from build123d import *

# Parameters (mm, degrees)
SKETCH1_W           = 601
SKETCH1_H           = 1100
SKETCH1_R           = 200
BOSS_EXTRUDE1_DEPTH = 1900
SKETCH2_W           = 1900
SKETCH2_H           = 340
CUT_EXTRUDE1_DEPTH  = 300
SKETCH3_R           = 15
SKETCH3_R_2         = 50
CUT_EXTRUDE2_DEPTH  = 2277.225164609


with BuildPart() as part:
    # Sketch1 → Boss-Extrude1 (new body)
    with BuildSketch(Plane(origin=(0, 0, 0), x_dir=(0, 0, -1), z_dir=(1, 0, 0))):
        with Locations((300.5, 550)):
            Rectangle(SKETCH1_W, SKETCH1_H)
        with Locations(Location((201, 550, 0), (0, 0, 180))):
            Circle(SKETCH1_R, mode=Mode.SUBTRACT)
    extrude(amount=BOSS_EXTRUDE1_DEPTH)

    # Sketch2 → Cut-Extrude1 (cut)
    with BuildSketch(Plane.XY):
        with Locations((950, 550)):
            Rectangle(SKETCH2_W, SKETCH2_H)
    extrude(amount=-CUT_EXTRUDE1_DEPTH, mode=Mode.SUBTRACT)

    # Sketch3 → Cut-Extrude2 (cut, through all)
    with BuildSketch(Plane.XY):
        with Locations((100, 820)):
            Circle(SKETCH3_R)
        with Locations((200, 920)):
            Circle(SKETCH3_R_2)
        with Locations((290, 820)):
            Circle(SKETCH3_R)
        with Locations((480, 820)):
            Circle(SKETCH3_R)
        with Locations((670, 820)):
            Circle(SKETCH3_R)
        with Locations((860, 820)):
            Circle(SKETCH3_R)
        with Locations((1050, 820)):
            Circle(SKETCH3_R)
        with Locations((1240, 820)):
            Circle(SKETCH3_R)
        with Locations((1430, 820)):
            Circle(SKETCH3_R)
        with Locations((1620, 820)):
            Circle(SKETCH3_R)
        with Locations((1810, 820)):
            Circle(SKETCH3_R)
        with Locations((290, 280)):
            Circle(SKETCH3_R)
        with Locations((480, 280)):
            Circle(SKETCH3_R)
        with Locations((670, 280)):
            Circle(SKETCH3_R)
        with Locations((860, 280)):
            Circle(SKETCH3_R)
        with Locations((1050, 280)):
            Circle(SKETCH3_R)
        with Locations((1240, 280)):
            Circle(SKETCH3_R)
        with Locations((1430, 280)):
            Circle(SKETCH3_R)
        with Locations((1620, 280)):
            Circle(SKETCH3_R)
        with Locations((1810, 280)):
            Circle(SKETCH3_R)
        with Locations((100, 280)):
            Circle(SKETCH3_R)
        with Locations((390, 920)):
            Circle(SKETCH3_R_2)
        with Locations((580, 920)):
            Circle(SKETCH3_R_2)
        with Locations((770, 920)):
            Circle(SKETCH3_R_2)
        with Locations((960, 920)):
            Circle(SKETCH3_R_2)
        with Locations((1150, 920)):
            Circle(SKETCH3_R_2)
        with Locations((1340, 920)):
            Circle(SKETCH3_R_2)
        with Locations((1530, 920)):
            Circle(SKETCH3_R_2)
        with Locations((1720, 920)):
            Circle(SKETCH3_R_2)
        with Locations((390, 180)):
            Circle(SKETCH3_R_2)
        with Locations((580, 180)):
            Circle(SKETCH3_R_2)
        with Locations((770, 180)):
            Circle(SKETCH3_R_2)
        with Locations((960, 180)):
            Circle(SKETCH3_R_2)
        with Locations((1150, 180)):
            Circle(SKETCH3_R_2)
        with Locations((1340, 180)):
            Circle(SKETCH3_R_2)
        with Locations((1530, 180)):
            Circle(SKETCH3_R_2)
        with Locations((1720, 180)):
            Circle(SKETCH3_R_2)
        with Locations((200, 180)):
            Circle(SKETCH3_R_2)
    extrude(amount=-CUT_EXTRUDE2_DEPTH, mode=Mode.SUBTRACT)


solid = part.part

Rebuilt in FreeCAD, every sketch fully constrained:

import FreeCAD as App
import Part
import Sketcher

doc = App.newDocument("Part")
body = doc.addObject("PartDesign::Body", "Body")

# Sketch on YZ plane
sketch1 = doc.addObject("Sketcher::SketchObject", "Sketch")
body.addObject(sketch1)
sketch1.AttachmentSupport = (doc.YZ_Plane, [""])
sketch1.MapMode = "FlatFace"
sketch1.addGeometry([
    Part.LineSegment(App.Vector(1100, 0, 0), App.Vector(0, 0, 0)),  # 0
    Part.LineSegment(App.Vector(0, 0, 0), App.Vector(0, -601, 0)),  # 1
    Part.LineSegment(App.Vector(0, -601, 0), App.Vector(1100, -601, 0)),  # 2
    Part.LineSegment(App.Vector(1100, -601, 0), App.Vector(1100, 0, 0)),  # 3
    Part.Circle(App.Vector(550, -201, 0), App.Vector(0, 0, 1), 200),  # 4
], False)
sketch1.addConstraint([
    Sketcher.Constraint("Coincident", 0, 2, 1, 1),
    Sketcher.Constraint("Coincident", 1, 2, 2, 1),
    Sketcher.Constraint("Coincident", 2, 2, 3, 1),
    Sketcher.Constraint("Coincident", 3, 2, 0, 1),
    Sketcher.Constraint("Horizontal", 0),
    Sketcher.Constraint("Vertical", 1),
    Sketcher.Constraint("Horizontal", 2),
    Sketcher.Constraint("Vertical", 3),
    Sketcher.Constraint("Coincident", 0, 2, -1, 1),
    Sketcher.Constraint("Diameter", 4, 400.0),
    Sketcher.Constraint("DistanceX", 0, 2, 0, 1, 1100.0),
    Sketcher.Constraint("DistanceY", 1, 2, 1, 1, 601.0),
    Sketcher.Constraint("DistanceX", -1, 1, 4, 3, 550.0),
    Sketcher.Constraint("DistanceY", 4, 3, -1, 1, 201.0),
])
pad1 = doc.addObject("PartDesign::Pad", "Pad")
body.addObject(pad1)
pad1.Profile = sketch1
pad1.Length = 1900

# Sketch on XY plane
sketch2 = doc.addObject("Sketcher::SketchObject", "Sketch001")
body.addObject(sketch2)
sketch2.AttachmentSupport = (doc.XY_Plane, [""])
sketch2.MapMode = "FlatFace"
sketch2.addGeometry([
    Part.LineSegment(App.Vector(0, 720, 0), App.Vector(0, 380, 0)),
    Part.LineSegment(App.Vector(0, 380, 0), App.Vector(1900, 380, 0)),
    Part.LineSegment(App.Vector(1900, 380, 0), App.Vector(1900, 720, 0)),
    Part.LineSegment(App.Vector(1900, 720, 0), App.Vector(0, 720, 0)),
], False)
sketch2.addConstraint([
    Sketcher.Constraint("Coincident", 0, 2, 1, 1),
    Sketcher.Constraint("Coincident", 1, 2, 2, 1),
    Sketcher.Constraint("Coincident", 2, 2, 3, 1),
    Sketcher.Constraint("Coincident", 3, 2, 0, 1),
    Sketcher.Constraint("Vertical", 0),
    Sketcher.Constraint("Horizontal", 1),
    Sketcher.Constraint("Vertical", 2),
    Sketcher.Constraint("Horizontal", 3),
    Sketcher.Constraint("PointOnObject", 0, 2, -2),
    Sketcher.Constraint("DistanceX", 1, 1, 1, 2, 1900.0),
    Sketcher.Constraint("DistanceY", 0, 2, 0, 1, 340.0),
    Sketcher.Constraint("DistanceY", -1, 1, 0, 2, 380.0),
])
pocket1 = doc.addObject("PartDesign::Pocket", "Pocket")
body.addObject(pocket1)
pocket1.Profile = sketch2
pocket1.Length = 300

# Sketch on XY plane
sketch3 = doc.addObject("Sketcher::SketchObject", "Sketch002")
body.addObject(sketch3)
sketch3.AttachmentSupport = (doc.XY_Plane, [""])
sketch3.MapMode = "FlatFace"
sketch3.addGeometry([
    Part.Circle(App.Vector(100, 820, 0), App.Vector(0, 0, 1), 15),  # 0
    Part.Circle(App.Vector(200, 920, 0), App.Vector(0, 0, 1), 50),  # 1
    Part.Circle(App.Vector(290, 820, 0), App.Vector(0, 0, 1), 15),  # 2
    Part.Circle(App.Vector(480, 820, 0), App.Vector(0, 0, 1), 15),  # 3
    Part.Circle(App.Vector(670, 820, 0), App.Vector(0, 0, 1), 15),  # 4
    Part.Circle(App.Vector(860, 820, 0), App.Vector(0, 0, 1), 15),  # 5
    Part.Circle(App.Vector(1050, 820, 0), App.Vector(0, 0, 1), 15),  # 6
    Part.Circle(App.Vector(1240, 820, 0), App.Vector(0, 0, 1), 15),  # 7
    Part.Circle(App.Vector(1430, 820, 0), App.Vector(0, 0, 1), 15),  # 8
    Part.Circle(App.Vector(1620, 820, 0), App.Vector(0, 0, 1), 15),  # 9
    Part.Circle(App.Vector(1810, 820, 0), App.Vector(0, 0, 1), 15),  # 10
    Part.Circle(App.Vector(290, 280, 0), App.Vector(0, 0, 1), 15),  # 11
    Part.Circle(App.Vector(480, 280, 0), App.Vector(0, 0, 1), 15),  # 12
    Part.Circle(App.Vector(670, 280, 0), App.Vector(0, 0, 1), 15),  # 13
    Part.Circle(App.Vector(860, 280, 0), App.Vector(0, 0, 1), 15),  # 14
    Part.Circle(App.Vector(1050, 280, 0), App.Vector(0, 0, 1), 15),  # 15
    Part.Circle(App.Vector(1240, 280, 0), App.Vector(0, 0, 1), 15),  # 16
    Part.Circle(App.Vector(1430, 280, 0), App.Vector(0, 0, 1), 15),  # 17
    Part.Circle(App.Vector(1620, 280, 0), App.Vector(0, 0, 1), 15),  # 18
    Part.Circle(App.Vector(1810, 280, 0), App.Vector(0, 0, 1), 15),  # 19
    Part.Circle(App.Vector(100, 280, 0), App.Vector(0, 0, 1), 15),  # 20
    Part.Circle(App.Vector(390, 920, 0), App.Vector(0, 0, 1), 50),  # 21
    Part.Circle(App.Vector(580, 920, 0), App.Vector(0, 0, 1), 50),  # 22
    Part.Circle(App.Vector(770, 920, 0), App.Vector(0, 0, 1), 50),  # 23
    Part.Circle(App.Vector(960, 920, 0), App.Vector(0, 0, 1), 50),  # 24
    Part.Circle(App.Vector(1150, 920, 0), App.Vector(0, 0, 1), 50),  # 25
    Part.Circle(App.Vector(1340, 920, 0), App.Vector(0, 0, 1), 50),  # 26
    Part.Circle(App.Vector(1530, 920, 0), App.Vector(0, 0, 1), 50),  # 27
    Part.Circle(App.Vector(1720, 920, 0), App.Vector(0, 0, 1), 50),  # 28
    Part.Circle(App.Vector(390, 180, 0), App.Vector(0, 0, 1), 50),  # 29
    Part.Circle(App.Vector(580, 180, 0), App.Vector(0, 0, 1), 50),  # 30
    Part.Circle(App.Vector(770, 180, 0), App.Vector(0, 0, 1), 50),  # 31
    Part.Circle(App.Vector(960, 180, 0), App.Vector(0, 0, 1), 50),  # 32
    Part.Circle(App.Vector(1150, 180, 0), App.Vector(0, 0, 1), 50),  # 33
    Part.Circle(App.Vector(1340, 180, 0), App.Vector(0, 0, 1), 50),  # 34
    Part.Circle(App.Vector(1530, 180, 0), App.Vector(0, 0, 1), 50),  # 35
    Part.Circle(App.Vector(1720, 180, 0), App.Vector(0, 0, 1), 50),  # 36
    Part.Circle(App.Vector(200, 180, 0), App.Vector(0, 0, 1), 50),  # 37
], False)
sketch3.addConstraint([
    Sketcher.Constraint("Equal", 0, 2),
    Sketcher.Constraint("Equal", 2, 3),
    Sketcher.Constraint("Equal", 3, 4),
    Sketcher.Constraint("Equal", 4, 5),
    Sketcher.Constraint("Equal", 5, 6),
    Sketcher.Constraint("Equal", 6, 7),
    Sketcher.Constraint("Equal", 7, 8),
    Sketcher.Constraint("Equal", 8, 9),
    Sketcher.Constraint("Equal", 9, 10),
    Sketcher.Constraint("Equal", 10, 11),
    Sketcher.Constraint("Equal", 11, 12),
    Sketcher.Constraint("Equal", 12, 13),
    Sketcher.Constraint("Equal", 13, 14),
    Sketcher.Constraint("Equal", 14, 15),
    Sketcher.Constraint("Equal", 15, 16),
    Sketcher.Constraint("Equal", 16, 17),
    Sketcher.Constraint("Equal", 17, 18),
    Sketcher.Constraint("Equal", 18, 19),
    Sketcher.Constraint("Equal", 19, 20),
    Sketcher.Constraint("Equal", 1, 21),
    Sketcher.Constraint("Equal", 21, 22),
    Sketcher.Constraint("Equal", 22, 23),
    Sketcher.Constraint("Equal", 23, 24),
    Sketcher.Constraint("Equal", 24, 25),
    Sketcher.Constraint("Equal", 25, 26),
    Sketcher.Constraint("Equal", 26, 27),
    Sketcher.Constraint("Equal", 27, 28),
    Sketcher.Constraint("Equal", 28, 29),
    Sketcher.Constraint("Equal", 29, 30),
    Sketcher.Constraint("Equal", 30, 31),
    Sketcher.Constraint("Equal", 31, 32),
    Sketcher.Constraint("Equal", 32, 33),
    Sketcher.Constraint("Equal", 33, 34),
    Sketcher.Constraint("Equal", 34, 35),
    Sketcher.Constraint("Equal", 35, 36),
    Sketcher.Constraint("Equal", 36, 37),
    Sketcher.Constraint("Horizontal", 0, 3, 2, 3),
    Sketcher.Constraint("Horizontal", 2, 3, 3, 3),
    Sketcher.Constraint("Horizontal", 3, 3, 4, 3),
    Sketcher.Constraint("Horizontal", 4, 3, 5, 3),
    Sketcher.Constraint("Horizontal", 5, 3, 6, 3),
    Sketcher.Constraint("Horizontal", 6, 3, 7, 3),
    Sketcher.Constraint("Horizontal", 7, 3, 8, 3),
    Sketcher.Constraint("Horizontal", 8, 3, 9, 3),
    Sketcher.Constraint("Horizontal", 9, 3, 10, 3),
    Sketcher.Constraint("Horizontal", 11, 3, 12, 3),
    Sketcher.Constraint("Horizontal", 12, 3, 13, 3),
    Sketcher.Constraint("Horizontal", 13, 3, 14, 3),
    Sketcher.Constraint("Horizontal", 14, 3, 15, 3),
    Sketcher.Constraint("Horizontal", 15, 3, 16, 3),
    Sketcher.Constraint("Horizontal", 16, 3, 17, 3),
    Sketcher.Constraint("Horizontal", 17, 3, 18, 3),
    Sketcher.Constraint("Horizontal", 18, 3, 19, 3),
    Sketcher.Constraint("Horizontal", 19, 3, 20, 3),
    Sketcher.Constraint("Horizontal", 1, 3, 21, 3),
    Sketcher.Constraint("Horizontal", 21, 3, 22, 3),
    Sketcher.Constraint("Horizontal", 22, 3, 23, 3),
    Sketcher.Constraint("Horizontal", 23, 3, 24, 3),
    Sketcher.Constraint("Horizontal", 24, 3, 25, 3),
    Sketcher.Constraint("Horizontal", 25, 3, 26, 3),
    Sketcher.Constraint("Horizontal", 26, 3, 27, 3),
    Sketcher.Constraint("Horizontal", 27, 3, 28, 3),
    Sketcher.Constraint("Horizontal", 29, 3, 30, 3),
    Sketcher.Constraint("Horizontal", 30, 3, 31, 3),
    Sketcher.Constraint("Horizontal", 31, 3, 32, 3),
    Sketcher.Constraint("Horizontal", 32, 3, 33, 3),
    Sketcher.Constraint("Horizontal", 33, 3, 34, 3),
    Sketcher.Constraint("Horizontal", 34, 3, 35, 3),
    Sketcher.Constraint("Horizontal", 35, 3, 36, 3),
    Sketcher.Constraint("Horizontal", 36, 3, 37, 3),
    Sketcher.Constraint("Vertical", 2, 3, 11, 3),
    Sketcher.Constraint("Vertical", 3, 3, 12, 3),
    Sketcher.Constraint("Vertical", 4, 3, 13, 3),
    Sketcher.Constraint("Vertical", 5, 3, 14, 3),
    Sketcher.Constraint("Vertical", 6, 3, 15, 3),
    Sketcher.Constraint("Vertical", 7, 3, 16, 3),
    Sketcher.Constraint("Vertical", 8, 3, 17, 3),
    Sketcher.Constraint("Vertical", 9, 3, 18, 3),
    Sketcher.Constraint("Vertical", 10, 3, 19, 3),
    Sketcher.Constraint("Vertical", 0, 3, 20, 3),
    Sketcher.Constraint("Vertical", 21, 3, 29, 3),
    Sketcher.Constraint("Vertical", 22, 3, 30, 3),
    Sketcher.Constraint("Vertical", 23, 3, 31, 3),
    Sketcher.Constraint("Vertical", 24, 3, 32, 3),
    Sketcher.Constraint("Vertical", 25, 3, 33, 3),
    Sketcher.Constraint("Vertical", 26, 3, 34, 3),
    Sketcher.Constraint("Vertical", 27, 3, 35, 3),
    Sketcher.Constraint("Vertical", 28, 3, 36, 3),
    Sketcher.Constraint("Vertical", 1, 3, 37, 3),
    Sketcher.Constraint("Diameter", 0, 30.0),
    Sketcher.Constraint("Diameter", 1, 100.0),
    Sketcher.Constraint("DistanceX", -1, 1, 0, 3, 100.0),
    Sketcher.Constraint("DistanceY", -1, 1, 0, 3, 820.0),
    Sketcher.Constraint("DistanceX", -1, 1, 1, 3, 200.0),
    Sketcher.Constraint("DistanceY", -1, 1, 1, 3, 920.0),
    Sketcher.Constraint("DistanceX", -1, 1, 2, 3, 290.0),
    Sketcher.Constraint("DistanceX", -1, 1, 3, 3, 480.0),
    Sketcher.Constraint("DistanceX", -1, 1, 4, 3, 670.0),
    Sketcher.Constraint("DistanceX", -1, 1, 5, 3, 860.0),
    Sketcher.Constraint("DistanceX", -1, 1, 6, 3, 1050.0),
    Sketcher.Constraint("DistanceX", -1, 1, 7, 3, 1240.0),
    Sketcher.Constraint("DistanceX", -1, 1, 8, 3, 1430.0),
    Sketcher.Constraint("DistanceX", -1, 1, 9, 3, 1620.0),
    Sketcher.Constraint("DistanceX", -1, 1, 10, 3, 1810.0),
    Sketcher.Constraint("DistanceY", -1, 1, 11, 3, 280.0),
    Sketcher.Constraint("DistanceX", -1, 1, 21, 3, 390.0),
    Sketcher.Constraint("DistanceX", -1, 1, 22, 3, 580.0),
    Sketcher.Constraint("DistanceX", -1, 1, 23, 3, 770.0),
    Sketcher.Constraint("DistanceX", -1, 1, 24, 3, 960.0),
    Sketcher.Constraint("DistanceX", -1, 1, 25, 3, 1150.0),
    Sketcher.Constraint("DistanceX", -1, 1, 26, 3, 1340.0),
    Sketcher.Constraint("DistanceX", -1, 1, 27, 3, 1530.0),
    Sketcher.Constraint("DistanceX", -1, 1, 28, 3, 1720.0),
    Sketcher.Constraint("DistanceY", -1, 1, 29, 3, 180.0),
])
pocket2 = doc.addObject("PartDesign::Pocket", "Pocket001")
body.addObject(pocket2)
pocket2.Profile = sketch3
pocket2.Type = "ThroughAll"

doc.recompute()
